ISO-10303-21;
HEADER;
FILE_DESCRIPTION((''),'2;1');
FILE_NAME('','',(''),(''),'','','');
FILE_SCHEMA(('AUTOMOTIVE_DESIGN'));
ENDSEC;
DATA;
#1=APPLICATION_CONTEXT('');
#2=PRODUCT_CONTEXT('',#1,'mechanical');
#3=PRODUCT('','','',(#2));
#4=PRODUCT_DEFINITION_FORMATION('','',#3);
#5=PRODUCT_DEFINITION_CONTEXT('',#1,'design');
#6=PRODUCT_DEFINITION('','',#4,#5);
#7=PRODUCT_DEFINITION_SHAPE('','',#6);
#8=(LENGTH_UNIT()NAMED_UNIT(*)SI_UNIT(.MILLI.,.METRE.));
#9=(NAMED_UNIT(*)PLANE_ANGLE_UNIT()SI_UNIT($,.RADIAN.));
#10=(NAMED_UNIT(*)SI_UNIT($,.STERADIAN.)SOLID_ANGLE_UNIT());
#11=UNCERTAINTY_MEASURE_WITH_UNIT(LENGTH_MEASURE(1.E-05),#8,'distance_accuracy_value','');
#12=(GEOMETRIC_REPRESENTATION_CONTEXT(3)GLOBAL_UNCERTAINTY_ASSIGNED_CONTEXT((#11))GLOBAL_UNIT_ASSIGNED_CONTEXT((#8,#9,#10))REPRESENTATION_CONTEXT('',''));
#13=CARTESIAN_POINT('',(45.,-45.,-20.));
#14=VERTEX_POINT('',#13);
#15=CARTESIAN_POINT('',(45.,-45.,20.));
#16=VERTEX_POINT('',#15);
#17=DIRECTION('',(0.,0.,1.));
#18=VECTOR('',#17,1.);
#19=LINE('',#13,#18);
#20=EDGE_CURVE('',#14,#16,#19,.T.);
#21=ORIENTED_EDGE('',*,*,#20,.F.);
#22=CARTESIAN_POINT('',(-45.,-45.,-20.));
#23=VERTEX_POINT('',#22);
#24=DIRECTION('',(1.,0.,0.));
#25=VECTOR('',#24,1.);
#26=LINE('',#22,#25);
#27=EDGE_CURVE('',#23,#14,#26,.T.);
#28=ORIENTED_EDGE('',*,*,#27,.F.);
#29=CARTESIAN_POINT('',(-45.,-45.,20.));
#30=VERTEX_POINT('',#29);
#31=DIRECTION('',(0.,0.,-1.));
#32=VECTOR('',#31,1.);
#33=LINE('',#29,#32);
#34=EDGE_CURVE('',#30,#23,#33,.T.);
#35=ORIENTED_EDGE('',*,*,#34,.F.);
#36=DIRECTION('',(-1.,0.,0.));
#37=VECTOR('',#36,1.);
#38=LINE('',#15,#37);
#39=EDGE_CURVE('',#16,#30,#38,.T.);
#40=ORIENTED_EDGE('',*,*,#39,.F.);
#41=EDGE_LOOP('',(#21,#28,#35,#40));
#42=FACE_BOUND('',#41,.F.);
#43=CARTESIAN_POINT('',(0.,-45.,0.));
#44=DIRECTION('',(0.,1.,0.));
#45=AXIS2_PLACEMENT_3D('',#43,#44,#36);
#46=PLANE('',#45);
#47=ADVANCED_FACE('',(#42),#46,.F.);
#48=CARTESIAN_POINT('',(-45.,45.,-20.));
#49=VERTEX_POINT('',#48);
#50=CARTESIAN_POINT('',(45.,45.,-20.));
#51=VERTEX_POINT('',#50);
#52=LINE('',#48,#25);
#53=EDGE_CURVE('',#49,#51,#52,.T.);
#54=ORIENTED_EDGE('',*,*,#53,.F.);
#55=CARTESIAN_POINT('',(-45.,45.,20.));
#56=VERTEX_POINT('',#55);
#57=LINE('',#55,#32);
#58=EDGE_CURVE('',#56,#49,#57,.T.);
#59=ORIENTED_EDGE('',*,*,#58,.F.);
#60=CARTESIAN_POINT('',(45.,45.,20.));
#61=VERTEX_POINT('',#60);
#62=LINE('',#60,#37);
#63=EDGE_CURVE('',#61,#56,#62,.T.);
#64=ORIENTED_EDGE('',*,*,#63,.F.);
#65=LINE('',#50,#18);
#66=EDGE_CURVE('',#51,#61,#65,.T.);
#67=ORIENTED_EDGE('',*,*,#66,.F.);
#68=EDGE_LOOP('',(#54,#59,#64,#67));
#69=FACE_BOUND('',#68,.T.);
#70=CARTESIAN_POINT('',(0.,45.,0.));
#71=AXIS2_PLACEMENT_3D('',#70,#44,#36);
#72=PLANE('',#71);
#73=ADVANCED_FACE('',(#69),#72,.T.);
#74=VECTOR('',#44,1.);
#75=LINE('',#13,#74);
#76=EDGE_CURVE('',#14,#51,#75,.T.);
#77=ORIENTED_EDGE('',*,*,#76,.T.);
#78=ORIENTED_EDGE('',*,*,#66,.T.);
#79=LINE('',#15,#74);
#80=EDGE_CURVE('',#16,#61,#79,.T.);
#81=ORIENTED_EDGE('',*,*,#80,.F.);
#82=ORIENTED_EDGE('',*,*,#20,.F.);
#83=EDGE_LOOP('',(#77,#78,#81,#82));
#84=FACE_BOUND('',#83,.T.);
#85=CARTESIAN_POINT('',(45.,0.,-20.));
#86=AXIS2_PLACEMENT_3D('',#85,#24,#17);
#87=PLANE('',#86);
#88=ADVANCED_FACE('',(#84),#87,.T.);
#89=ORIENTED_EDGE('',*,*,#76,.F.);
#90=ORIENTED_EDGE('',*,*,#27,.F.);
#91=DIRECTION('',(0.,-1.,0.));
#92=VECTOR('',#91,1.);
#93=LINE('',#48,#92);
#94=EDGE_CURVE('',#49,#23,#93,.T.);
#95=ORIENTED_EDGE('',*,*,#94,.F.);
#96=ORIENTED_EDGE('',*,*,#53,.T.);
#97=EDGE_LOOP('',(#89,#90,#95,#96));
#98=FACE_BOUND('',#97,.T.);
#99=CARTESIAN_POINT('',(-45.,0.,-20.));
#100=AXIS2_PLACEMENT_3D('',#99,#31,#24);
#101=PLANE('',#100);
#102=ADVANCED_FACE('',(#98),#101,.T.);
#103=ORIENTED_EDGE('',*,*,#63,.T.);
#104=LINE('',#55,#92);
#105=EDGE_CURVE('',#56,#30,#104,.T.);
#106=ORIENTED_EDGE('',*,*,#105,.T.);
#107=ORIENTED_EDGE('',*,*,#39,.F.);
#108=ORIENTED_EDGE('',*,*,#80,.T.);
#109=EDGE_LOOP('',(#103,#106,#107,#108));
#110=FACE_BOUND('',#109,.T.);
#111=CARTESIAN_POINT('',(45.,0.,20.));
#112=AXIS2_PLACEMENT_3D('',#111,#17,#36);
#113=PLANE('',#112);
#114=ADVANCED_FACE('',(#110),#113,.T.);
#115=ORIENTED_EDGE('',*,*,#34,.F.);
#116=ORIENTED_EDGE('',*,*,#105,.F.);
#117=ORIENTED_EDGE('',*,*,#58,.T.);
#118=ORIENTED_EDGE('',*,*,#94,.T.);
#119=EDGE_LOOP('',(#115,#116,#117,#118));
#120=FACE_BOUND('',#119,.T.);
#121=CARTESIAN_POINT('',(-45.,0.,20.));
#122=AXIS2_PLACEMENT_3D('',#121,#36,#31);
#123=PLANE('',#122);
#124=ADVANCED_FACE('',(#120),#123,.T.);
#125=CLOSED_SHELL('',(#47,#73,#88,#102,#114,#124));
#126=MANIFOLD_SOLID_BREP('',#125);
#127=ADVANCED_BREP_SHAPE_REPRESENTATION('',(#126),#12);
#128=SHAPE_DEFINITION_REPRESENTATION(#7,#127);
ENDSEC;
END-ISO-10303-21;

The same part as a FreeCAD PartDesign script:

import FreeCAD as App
import Part
import Sketcher

doc = App.newDocument("Part")
body = doc.addObject("PartDesign::Body", "Body")

# Sketch on XZ plane
sketch1 = doc.addObject("Sketcher::SketchObject", "Sketch")
body.addObject(sketch1)
sketch1.AttachmentSupport = (doc.XZ_Plane, [""])
sketch1.MapMode = "FlatFace"
sketch1.addGeometry(Part.LineSegment(App.Vector(-45, 20, 0), App.Vector(45, 20, 0)), False)
sketch1.addGeometry(Part.LineSegment(App.Vector(45, 20, 0), App.Vector(45, -20, 0)), False)
sketch1.addGeometry(Part.LineSegment(App.Vector(45, -20, 0), App.Vector(-45, -20, 0)), False)
sketch1.addGeometry(Part.LineSegment(App.Vector(-45, -20, 0), App.Vector(-45, 20, 0)), False)
sketch1.addConstraint(Sketcher.Constraint("Coincident", 0, 2, 1, 1))
sketch1.addConstraint(Sketcher.Constraint("Coincident", 1, 2, 2, 1))
sketch1.addConstraint(Sketcher.Constraint("Coincident", 2, 2, 3, 1))
sketch1.addConstraint(Sketcher.Constraint("Coincident", 3, 2, 0, 1))
sketch1.addConstraint(Sketcher.Constraint("Horizontal", 0))
sketch1.addConstraint(Sketcher.Constraint("Vertical", 1))
sketch1.addConstraint(Sketcher.Constraint("Horizontal", 2))
sketch1.addConstraint(Sketcher.Constraint("Vertical", 3))
sketch1.addConstraint(Sketcher.Constraint("Symmetric", 0, 2, 2, 2, -1, 1))
sketch1.addConstraint(Sketcher.Constraint("DistanceX", 0, 1, 0, 2, 90.0))
sketch1.addConstraint(Sketcher.Constraint("DistanceY", 1, 2, 1, 1, 40.0))
pad1 = doc.addObject("PartDesign::Pad", "Pad")
body.addObject(pad1)
pad1.Profile = sketch1
pad1.Length = 90
pad1.Midplane = True

doc.recompute()
